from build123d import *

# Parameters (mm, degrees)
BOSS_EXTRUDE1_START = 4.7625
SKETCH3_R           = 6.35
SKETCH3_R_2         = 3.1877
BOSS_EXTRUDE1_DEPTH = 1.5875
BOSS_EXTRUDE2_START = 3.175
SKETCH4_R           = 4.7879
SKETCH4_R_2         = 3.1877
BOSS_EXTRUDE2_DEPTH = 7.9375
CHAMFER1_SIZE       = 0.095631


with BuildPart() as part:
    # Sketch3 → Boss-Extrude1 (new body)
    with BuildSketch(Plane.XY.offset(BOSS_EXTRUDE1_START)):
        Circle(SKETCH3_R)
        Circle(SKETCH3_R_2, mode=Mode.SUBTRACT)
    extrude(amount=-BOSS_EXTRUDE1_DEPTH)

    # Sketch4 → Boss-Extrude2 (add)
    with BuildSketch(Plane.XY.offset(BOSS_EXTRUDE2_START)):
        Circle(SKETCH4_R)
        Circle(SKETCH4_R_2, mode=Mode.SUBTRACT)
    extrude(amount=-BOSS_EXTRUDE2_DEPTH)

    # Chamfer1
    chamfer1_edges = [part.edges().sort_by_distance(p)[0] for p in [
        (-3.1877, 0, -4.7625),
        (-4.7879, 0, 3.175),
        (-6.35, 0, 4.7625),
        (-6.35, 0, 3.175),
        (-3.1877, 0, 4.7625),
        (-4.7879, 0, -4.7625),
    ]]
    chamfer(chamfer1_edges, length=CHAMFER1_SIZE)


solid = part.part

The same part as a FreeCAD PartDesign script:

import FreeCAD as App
import Part
import Sketcher
from FreeCAD import Vector
Q = App.Units.Quantity


def edges_at(feature, points):
    """Names of the edges that pass closest to the given points."""
    edges = feature.Shape.Edges
    near = lambda p: min(range(len(edges)), key=lambda i: edges[i].distToShape(Part.Vertex(*p))[0])
    return sorted({f"Edge{near(p) + 1}" for p in points})

doc = App.newDocument("Part")
body = doc.addObject("PartDesign::Body", "Body")

# Sketch on XY plane
sketch1 = doc.addObject("Sketcher::SketchObject", "Sketch")
body.addObject(sketch1)
sketch1.AttachmentSupport = (doc.XY_Plane, [""])
sketch1.MapMode = "FlatFace"
sketch1.AttachmentOffset = App.Placement(Vector(0, 0, 0.1875 * 25.4), App.Rotation())
sketch1.addGeometry([
    Part.Circle(Vector(0, 0, 0), Vector(0, 0, 1), 6.3),
    Part.Circle(Vector(0, 0, 0), Vector(0, 0, 1), 3.2),
], False)
sketch1.addConstraint([
    Sketcher.Constraint("Coincident", 0, 3, -1, 1),
    Sketcher.Constraint("Coincident", 1, 3, -1, 1),
    Sketcher.Constraint("Diameter", 0, Q("0.5 in")),
    Sketcher.Constraint("Diameter", 1, Q("0.251 in")),
])
pad1 = doc.addObject("PartDesign::Pad", "Pad")
body.addObject(pad1)
pad1.Profile = sketch1
pad1.Length = Q("0.0625 in")
pad1.Reversed = True

# Sketch on XY plane
sketch2 = doc.addObject("Sketcher::SketchObject", "Sketch001")
body.addObject(sketch2)
sketch2.AttachmentSupport = (doc.XY_Plane, [""])
sketch2.MapMode = "FlatFace"
sketch2.AttachmentOffset = App.Placement(Vector(0, 0, 0.125 * 25.4), App.Rotation())
sketch2.addGeometry([
    Part.Circle(Vector(0, 0, 0), Vector(0, 0, 1), 4.8),
    Part.Circle(Vector(0, 0, 0), Vector(0, 0, 1), 3.2),
], False)
sketch2.addConstraint([
    Sketcher.Constraint("Coincident", 0, 3, -1, 1),
    Sketcher.Constraint("Coincident", 1, 3, -1, 1),
    Sketcher.Constraint("Diameter", 0, Q("0.377 in")),
    Sketcher.Constraint("Diameter", 1, Q("0.251 in")),
])
pad2 = doc.addObject("PartDesign::Pad", "Pad001")
body.addObject(pad2)
pad2.Profile = sketch2
pad2.Length = Q("0.3125 in")
pad2.Reversed = True
doc.recompute()

chamfer = doc.addObject("PartDesign::Chamfer", "Chamfer")
body.addObject(chamfer)
chamfer.Base = (pad2, edges_at(pad2, [
    (-3.188, 0, -4.763),
    (-4.788, 0, 3.175),
    (-6.35, 0, 4.763),
    (-6.35, 0, 3.175),
    (-3.188, 0, 4.763),
    (-4.788, 0, -4.763),
]))
chamfer.Size = 0.095631

doc.recompute()
